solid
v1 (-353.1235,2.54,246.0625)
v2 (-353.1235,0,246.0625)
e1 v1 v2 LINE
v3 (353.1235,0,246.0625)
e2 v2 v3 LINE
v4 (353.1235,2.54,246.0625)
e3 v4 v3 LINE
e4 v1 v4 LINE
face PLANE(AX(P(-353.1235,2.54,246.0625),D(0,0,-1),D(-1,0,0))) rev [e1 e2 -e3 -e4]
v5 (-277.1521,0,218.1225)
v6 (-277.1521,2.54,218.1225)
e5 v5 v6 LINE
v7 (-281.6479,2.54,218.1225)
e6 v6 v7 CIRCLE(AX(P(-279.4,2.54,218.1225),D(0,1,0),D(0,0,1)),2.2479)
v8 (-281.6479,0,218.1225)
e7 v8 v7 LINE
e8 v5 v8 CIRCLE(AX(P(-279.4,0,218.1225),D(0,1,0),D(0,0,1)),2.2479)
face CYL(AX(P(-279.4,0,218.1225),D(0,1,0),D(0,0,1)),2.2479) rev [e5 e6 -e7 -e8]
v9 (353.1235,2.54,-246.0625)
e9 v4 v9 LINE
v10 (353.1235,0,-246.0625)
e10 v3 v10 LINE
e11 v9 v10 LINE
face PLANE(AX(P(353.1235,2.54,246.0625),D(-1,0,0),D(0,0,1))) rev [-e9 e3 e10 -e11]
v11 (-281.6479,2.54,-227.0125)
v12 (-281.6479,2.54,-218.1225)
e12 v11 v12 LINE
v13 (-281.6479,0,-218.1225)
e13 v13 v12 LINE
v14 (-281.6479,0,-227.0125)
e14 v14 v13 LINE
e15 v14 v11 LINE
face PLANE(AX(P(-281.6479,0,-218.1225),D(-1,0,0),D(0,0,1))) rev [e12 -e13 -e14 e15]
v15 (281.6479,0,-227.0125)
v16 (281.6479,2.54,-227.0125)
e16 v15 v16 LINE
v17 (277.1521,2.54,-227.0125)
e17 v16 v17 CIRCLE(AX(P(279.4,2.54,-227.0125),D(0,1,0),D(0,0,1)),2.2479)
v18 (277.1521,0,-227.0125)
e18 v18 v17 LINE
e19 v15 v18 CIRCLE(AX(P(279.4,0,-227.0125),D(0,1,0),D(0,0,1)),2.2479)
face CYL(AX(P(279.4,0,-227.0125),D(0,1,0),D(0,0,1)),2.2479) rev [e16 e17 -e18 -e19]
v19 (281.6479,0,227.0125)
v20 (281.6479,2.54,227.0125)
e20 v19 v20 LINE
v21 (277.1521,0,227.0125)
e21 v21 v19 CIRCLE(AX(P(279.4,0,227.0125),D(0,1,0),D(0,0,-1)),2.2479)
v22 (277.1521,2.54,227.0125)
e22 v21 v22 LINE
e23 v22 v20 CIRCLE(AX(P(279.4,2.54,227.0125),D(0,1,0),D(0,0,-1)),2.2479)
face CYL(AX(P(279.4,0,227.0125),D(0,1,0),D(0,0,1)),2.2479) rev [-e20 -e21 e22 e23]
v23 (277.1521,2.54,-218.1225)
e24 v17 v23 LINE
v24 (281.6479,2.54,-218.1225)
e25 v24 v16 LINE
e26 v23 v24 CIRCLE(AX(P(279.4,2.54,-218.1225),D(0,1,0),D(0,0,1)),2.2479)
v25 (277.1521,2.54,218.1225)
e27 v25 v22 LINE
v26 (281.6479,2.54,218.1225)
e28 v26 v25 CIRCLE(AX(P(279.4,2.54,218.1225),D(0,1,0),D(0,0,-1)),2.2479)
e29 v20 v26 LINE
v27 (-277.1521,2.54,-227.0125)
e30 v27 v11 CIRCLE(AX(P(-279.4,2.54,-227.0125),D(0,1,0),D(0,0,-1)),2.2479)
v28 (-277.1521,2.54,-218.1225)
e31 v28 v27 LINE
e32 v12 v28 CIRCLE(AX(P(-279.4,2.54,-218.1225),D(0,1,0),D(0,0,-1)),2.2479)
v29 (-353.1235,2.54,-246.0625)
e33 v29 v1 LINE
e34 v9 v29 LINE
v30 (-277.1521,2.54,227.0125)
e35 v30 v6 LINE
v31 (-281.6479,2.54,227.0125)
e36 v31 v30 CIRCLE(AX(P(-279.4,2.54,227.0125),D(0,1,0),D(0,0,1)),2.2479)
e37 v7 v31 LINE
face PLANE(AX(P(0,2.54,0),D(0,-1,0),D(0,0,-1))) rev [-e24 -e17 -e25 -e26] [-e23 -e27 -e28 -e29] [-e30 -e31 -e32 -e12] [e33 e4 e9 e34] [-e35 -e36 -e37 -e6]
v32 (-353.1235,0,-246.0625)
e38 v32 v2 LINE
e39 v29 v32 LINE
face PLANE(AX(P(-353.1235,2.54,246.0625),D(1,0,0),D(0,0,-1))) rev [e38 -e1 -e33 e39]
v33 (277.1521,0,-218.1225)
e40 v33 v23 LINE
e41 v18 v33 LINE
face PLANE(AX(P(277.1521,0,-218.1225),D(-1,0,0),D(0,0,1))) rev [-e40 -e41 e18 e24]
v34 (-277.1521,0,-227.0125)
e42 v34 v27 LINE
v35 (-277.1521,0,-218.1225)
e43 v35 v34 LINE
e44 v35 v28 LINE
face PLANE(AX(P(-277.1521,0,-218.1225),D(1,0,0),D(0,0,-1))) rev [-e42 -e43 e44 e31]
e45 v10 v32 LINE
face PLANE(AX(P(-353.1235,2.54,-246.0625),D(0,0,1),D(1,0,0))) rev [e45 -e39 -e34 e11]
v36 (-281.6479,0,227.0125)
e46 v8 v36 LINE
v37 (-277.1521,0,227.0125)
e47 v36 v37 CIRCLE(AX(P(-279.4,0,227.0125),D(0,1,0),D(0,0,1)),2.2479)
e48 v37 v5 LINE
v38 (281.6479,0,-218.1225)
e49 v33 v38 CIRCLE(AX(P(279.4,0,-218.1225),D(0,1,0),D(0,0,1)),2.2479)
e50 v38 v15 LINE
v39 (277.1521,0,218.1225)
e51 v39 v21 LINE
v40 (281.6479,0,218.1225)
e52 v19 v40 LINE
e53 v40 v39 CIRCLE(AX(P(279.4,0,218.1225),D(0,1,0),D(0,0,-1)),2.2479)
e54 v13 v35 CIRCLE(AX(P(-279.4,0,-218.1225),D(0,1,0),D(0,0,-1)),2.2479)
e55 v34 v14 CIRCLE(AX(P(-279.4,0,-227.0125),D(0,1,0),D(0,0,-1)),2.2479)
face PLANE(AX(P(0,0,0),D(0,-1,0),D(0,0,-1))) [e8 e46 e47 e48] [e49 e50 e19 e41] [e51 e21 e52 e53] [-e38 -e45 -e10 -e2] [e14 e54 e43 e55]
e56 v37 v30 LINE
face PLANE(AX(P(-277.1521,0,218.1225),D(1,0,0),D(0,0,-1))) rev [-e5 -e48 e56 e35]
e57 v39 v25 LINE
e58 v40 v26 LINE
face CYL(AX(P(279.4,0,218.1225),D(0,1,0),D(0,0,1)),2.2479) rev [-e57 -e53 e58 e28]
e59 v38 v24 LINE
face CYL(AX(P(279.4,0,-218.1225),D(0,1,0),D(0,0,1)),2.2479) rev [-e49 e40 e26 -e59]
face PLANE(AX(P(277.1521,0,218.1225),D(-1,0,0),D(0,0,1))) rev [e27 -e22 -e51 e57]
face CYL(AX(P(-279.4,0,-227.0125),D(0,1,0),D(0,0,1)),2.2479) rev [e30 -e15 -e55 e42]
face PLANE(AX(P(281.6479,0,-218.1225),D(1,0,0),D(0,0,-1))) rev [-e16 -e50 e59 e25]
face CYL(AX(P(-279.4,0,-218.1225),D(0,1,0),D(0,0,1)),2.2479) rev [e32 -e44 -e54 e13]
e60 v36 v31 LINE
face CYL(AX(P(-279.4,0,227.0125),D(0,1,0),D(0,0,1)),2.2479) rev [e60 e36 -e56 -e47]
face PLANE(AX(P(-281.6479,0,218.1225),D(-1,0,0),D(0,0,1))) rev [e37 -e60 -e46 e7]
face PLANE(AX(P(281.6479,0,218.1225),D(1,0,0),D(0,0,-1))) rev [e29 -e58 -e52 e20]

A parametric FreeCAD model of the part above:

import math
import FreeCAD as App
import Part
import Sketcher
Q = App.Units.Quantity


def add_polygon(sketch, points):
    """Adds a closed chain of lines whose ends are joined by coincident constraints."""
    first, n = sketch.GeometryCount, len(points)
    for a, b in zip(points, points[1:] + points[:1]):
        sketch.addGeometry(Part.LineSegment(App.Vector(*a, 0), App.Vector(*b, 0)), False)
    for i in range(n):
        sketch.addConstraint(Sketcher.Constraint("Coincident", first + i, 2, first + (i + 1) % n, 1))

doc = App.newDocument("Part")
body = doc.addObject("PartDesign::Body", "Body")

# Sketch on XZ plane
sketch1 = body.newObject("Sketcher::SketchObject", "Sketch")
sketch1.AttachmentSupport = (doc.getObject("XZ_Plane"), [""])
sketch1.MapMode = "FlatFace"
add_polygon(sketch1, [(-353, -246), (-353, 246), (353, 246), (353, -246)])  # lines 0-3
sketch1.addConstraint(Sketcher.Constraint("Vertical", 0))
sketch1.addConstraint(Sketcher.Constraint("Horizontal", 1))
sketch1.addConstraint(Sketcher.Constraint("Vertical", 2))
sketch1.addConstraint(Sketcher.Constraint("Horizontal", 3))
sketch1.addConstraint(Sketcher.Constraint("Symmetric", 0, 2, 2, 2, -1, 1))
sketch1.addConstraint(Sketcher.Constraint("DistanceX", 1, 1, 1, 2, Q("27.805 in")))
sketch1.addConstraint(Sketcher.Constraint("DistanceY", 0, 1, 0, 2, Q("19.375 in")))
pad1 = body.newObject("PartDesign::Pad", "Pad")
pad1.Profile = sketch1
pad1.Length = Q("0.1 in")
pad1.Reversed = True

# Sketch on XZ plane
sketch2 = body.newObject("Sketcher::SketchObject", "Sketch001")
sketch2.AttachmentSupport = (doc.getObject("XZ_Plane"), [""])
sketch2.MapMode = "FlatFace"
sketch2.AttachmentOffset = App.Placement(App.Vector(0, 0, -0.1 * 25.4), App.Rotation())
sketch2.addGeometry(Part.LineSegment(App.Vector(277.2, -227, 0), App.Vector(277.2, -218.1, 0)), False)
sketch2.addGeometry(Part.ArcOfCircle(Part.Circle(App.Vector(279.4, -218.1, 0), App.Vector(0, 0, 1), 2.2), math.radians(0), math.radians(180)), False)
sketch2.addGeometry(Part.LineSegment(App.Vector(281.6, -218.1, 0), App.Vector(281.6, -227, 0)), False)
sketch2.addGeometry(Part.ArcOfCircle(Part.Circle(App.Vector(279.4, -227, 0), App.Vector(0, 0, 1), 2.2), math.radians(180), math.radians(360)), False)
sketch2.addGeometry(Part.LineSegment(App.Vector(-277.2, -218.1, 0), App.Vector(-277.2, -227, 0)), False)
sketch2.addGeometry(Part.ArcOfCircle(Part.Circle(App.Vector(-279.4, -227, 0), App.Vector(0, 0, 1), 2.2), math.radians(180), math.radians(360)), False)
sketch2.addGeometry(Part.LineSegment(App.Vector(-281.6, -227, 0), App.Vector(-281.6, -218.1, 0)), False)
sketch2.addGeometry(Part.ArcOfCircle(Part.Circle(App.Vector(-279.4, -218.1, 0), App.Vector(0, 0, 1), 2.2), math.radians(0), math.radians(180)), False)
sketch2.addGeometry(Part.LineSegment(App.Vector(277.2, 218.1, 0), App.Vector(277.2, 227, 0)), False)
sketch2.addGeometry(Part.ArcOfCircle(Part.Circle(App.Vector(279.4, 227, 0), App.Vector(0, 0, 1), 2.2), math.radians(0), math.radians(180)), False)
sketch2.addGeometry(Part.LineSegment(App.Vector(281.6, 227, 0), App.Vector(281.6, 218.1, 0)), False)
sketch2.addGeometry(Part.ArcOfCircle(Part.Circle(App.Vector(279.4, 218.1, 0), App.Vector(0, 0, 1), 2.2), math.radians(180), math.radians(360)), False)
sketch2.addGeometry(Part.LineSegment(App.Vector(-277.2, 227, 0), App.Vector(-277.2, 218.1, 0)), False)
sketch2.addGeometry(Part.ArcOfCircle(Part.Circle(App.Vector(-279.4, 218.1, 0), App.Vector(0, 0, 1), 2.2), math.radians(180), math.radians(360)), False)
sketch2.addGeometry(Part.LineSegment(App.Vector(-281.6, 218.1, 0), App.Vector(-281.6, 227, 0)), False)
sketch2.addGeometry(Part.ArcOfCircle(Part.Circle(App.Vector(-279.4, 227, 0), App.Vector(0, 0, 1), 2.2), math.radians(0), math.radians(180)), False)
sketch2.addConstraint(Sketcher.Constraint("Tangent", 0, 2, 1, 2))
sketch2.addConstraint(Sketcher.Constraint("Tangent", 1, 1, 2, 1))
sketch2.addConstraint(Sketcher.Constraint("Tangent", 2, 2, 3, 2))
sketch2.addConstraint(Sketcher.Constraint("Tangent", 3, 1, 0, 1))
sketch2.addConstraint(Sketcher.Constraint("Tangent", 4, 2, 5, 2))
sketch2.addConstraint(Sketcher.Constraint("Tangent", 5, 1, 6, 1))
sketch2.addConstraint(Sketcher.Constraint("Tangent", 6, 2, 7, 2))
sketch2.addConstraint(Sketcher.Constraint("Tangent", 7, 1, 4, 1))
sketch2.addConstraint(Sketcher.Constraint("Tangent", 8, 2, 9, 2))
sketch2.addConstraint(Sketcher.Constraint("Tangent", 9, 1, 10, 1))
sketch2.addConstraint(Sketcher.Constraint("Tangent", 10, 2, 11, 2))
sketch2.addConstraint(Sketcher.Constraint("Tangent", 11, 1, 8, 1))
sketch2.addConstraint(Sketcher.Constraint("Tangent", 12, 2, 13, 2))
sketch2.addConstraint(Sketcher.Constraint("Tangent", 13, 1, 14, 1))
sketch2.addConstraint(Sketcher.Constraint("Tangent", 14, 2, 15, 2))
sketch2.addConstraint(Sketcher.Constraint("Tangent", 15, 1, 12, 1))
sketch2.addConstraint(Sketcher.Constraint("Vertical", 0))
sketch2.addConstraint(Sketcher.Constraint("Vertical", 2))
sketch2.addConstraint(Sketcher.Constraint("Vertical", 4))
sketch2.addConstraint(Sketcher.Constraint("Vertical", 6))
sketch2.addConstraint(Sketcher.Constraint("Vertical", 8))
sketch2.addConstraint(Sketcher.Constraint("Vertical", 10))
sketch2.addConstraint(Sketcher.Constraint("Vertical", 12))
sketch2.addConstraint(Sketcher.Constraint("Vertical", 14))
sketch2.addConstraint(Sketcher.Constraint("Equal", 3, 5))
sketch2.addConstraint(Sketcher.Constraint("Equal", 7, 9))
sketch2.addConstraint(Sketcher.Constraint("Equal", 11, 13))
sketch2.addConstraint(Sketcher.Constraint("Symmetric", 5, 3, 9, 3, -1, 1))
sketch2.addConstraint(Sketcher.Constraint("Symmetric", 1, 3, 13, 3, -1, 1))
sketch2.addConstraint(Sketcher.Constraint("Symmetric", 3, 3, 5, 3, -2))
sketch2.addConstraint(Sketcher.Constraint("Horizontal", 1, 3, 7, 3))
sketch2.addConstraint(Sketcher.Constraint("Horizontal", 11, 3, 13, 3))
sketch2.addConstraint(Sketcher.Constraint("Horizontal", 9, 3, 15, 3))
sketch2.addConstraint(Sketcher.Constraint("DistanceX", -1, 1, 1, 3, Q("11 in")))
sketch2.addConstraint(Sketcher.Constraint("DistanceY", 0, 1, 0, 2, Q("0.35 in")))
sketch2.addConstraint(Sketcher.Constraint("Radius", 1, Q("0.0885 in")))
sketch2.addConstraint(Sketcher.Constraint("DistanceY", 3, 3, -1, 1, Q("8.9375 in")))
pocket1 = body.newObject("PartDesign::Pocket", "Pocket")
pocket1.Profile = sketch2
pocket1.Type = "ThroughAll"
pocket1.Reversed = True

doc.recompute()
